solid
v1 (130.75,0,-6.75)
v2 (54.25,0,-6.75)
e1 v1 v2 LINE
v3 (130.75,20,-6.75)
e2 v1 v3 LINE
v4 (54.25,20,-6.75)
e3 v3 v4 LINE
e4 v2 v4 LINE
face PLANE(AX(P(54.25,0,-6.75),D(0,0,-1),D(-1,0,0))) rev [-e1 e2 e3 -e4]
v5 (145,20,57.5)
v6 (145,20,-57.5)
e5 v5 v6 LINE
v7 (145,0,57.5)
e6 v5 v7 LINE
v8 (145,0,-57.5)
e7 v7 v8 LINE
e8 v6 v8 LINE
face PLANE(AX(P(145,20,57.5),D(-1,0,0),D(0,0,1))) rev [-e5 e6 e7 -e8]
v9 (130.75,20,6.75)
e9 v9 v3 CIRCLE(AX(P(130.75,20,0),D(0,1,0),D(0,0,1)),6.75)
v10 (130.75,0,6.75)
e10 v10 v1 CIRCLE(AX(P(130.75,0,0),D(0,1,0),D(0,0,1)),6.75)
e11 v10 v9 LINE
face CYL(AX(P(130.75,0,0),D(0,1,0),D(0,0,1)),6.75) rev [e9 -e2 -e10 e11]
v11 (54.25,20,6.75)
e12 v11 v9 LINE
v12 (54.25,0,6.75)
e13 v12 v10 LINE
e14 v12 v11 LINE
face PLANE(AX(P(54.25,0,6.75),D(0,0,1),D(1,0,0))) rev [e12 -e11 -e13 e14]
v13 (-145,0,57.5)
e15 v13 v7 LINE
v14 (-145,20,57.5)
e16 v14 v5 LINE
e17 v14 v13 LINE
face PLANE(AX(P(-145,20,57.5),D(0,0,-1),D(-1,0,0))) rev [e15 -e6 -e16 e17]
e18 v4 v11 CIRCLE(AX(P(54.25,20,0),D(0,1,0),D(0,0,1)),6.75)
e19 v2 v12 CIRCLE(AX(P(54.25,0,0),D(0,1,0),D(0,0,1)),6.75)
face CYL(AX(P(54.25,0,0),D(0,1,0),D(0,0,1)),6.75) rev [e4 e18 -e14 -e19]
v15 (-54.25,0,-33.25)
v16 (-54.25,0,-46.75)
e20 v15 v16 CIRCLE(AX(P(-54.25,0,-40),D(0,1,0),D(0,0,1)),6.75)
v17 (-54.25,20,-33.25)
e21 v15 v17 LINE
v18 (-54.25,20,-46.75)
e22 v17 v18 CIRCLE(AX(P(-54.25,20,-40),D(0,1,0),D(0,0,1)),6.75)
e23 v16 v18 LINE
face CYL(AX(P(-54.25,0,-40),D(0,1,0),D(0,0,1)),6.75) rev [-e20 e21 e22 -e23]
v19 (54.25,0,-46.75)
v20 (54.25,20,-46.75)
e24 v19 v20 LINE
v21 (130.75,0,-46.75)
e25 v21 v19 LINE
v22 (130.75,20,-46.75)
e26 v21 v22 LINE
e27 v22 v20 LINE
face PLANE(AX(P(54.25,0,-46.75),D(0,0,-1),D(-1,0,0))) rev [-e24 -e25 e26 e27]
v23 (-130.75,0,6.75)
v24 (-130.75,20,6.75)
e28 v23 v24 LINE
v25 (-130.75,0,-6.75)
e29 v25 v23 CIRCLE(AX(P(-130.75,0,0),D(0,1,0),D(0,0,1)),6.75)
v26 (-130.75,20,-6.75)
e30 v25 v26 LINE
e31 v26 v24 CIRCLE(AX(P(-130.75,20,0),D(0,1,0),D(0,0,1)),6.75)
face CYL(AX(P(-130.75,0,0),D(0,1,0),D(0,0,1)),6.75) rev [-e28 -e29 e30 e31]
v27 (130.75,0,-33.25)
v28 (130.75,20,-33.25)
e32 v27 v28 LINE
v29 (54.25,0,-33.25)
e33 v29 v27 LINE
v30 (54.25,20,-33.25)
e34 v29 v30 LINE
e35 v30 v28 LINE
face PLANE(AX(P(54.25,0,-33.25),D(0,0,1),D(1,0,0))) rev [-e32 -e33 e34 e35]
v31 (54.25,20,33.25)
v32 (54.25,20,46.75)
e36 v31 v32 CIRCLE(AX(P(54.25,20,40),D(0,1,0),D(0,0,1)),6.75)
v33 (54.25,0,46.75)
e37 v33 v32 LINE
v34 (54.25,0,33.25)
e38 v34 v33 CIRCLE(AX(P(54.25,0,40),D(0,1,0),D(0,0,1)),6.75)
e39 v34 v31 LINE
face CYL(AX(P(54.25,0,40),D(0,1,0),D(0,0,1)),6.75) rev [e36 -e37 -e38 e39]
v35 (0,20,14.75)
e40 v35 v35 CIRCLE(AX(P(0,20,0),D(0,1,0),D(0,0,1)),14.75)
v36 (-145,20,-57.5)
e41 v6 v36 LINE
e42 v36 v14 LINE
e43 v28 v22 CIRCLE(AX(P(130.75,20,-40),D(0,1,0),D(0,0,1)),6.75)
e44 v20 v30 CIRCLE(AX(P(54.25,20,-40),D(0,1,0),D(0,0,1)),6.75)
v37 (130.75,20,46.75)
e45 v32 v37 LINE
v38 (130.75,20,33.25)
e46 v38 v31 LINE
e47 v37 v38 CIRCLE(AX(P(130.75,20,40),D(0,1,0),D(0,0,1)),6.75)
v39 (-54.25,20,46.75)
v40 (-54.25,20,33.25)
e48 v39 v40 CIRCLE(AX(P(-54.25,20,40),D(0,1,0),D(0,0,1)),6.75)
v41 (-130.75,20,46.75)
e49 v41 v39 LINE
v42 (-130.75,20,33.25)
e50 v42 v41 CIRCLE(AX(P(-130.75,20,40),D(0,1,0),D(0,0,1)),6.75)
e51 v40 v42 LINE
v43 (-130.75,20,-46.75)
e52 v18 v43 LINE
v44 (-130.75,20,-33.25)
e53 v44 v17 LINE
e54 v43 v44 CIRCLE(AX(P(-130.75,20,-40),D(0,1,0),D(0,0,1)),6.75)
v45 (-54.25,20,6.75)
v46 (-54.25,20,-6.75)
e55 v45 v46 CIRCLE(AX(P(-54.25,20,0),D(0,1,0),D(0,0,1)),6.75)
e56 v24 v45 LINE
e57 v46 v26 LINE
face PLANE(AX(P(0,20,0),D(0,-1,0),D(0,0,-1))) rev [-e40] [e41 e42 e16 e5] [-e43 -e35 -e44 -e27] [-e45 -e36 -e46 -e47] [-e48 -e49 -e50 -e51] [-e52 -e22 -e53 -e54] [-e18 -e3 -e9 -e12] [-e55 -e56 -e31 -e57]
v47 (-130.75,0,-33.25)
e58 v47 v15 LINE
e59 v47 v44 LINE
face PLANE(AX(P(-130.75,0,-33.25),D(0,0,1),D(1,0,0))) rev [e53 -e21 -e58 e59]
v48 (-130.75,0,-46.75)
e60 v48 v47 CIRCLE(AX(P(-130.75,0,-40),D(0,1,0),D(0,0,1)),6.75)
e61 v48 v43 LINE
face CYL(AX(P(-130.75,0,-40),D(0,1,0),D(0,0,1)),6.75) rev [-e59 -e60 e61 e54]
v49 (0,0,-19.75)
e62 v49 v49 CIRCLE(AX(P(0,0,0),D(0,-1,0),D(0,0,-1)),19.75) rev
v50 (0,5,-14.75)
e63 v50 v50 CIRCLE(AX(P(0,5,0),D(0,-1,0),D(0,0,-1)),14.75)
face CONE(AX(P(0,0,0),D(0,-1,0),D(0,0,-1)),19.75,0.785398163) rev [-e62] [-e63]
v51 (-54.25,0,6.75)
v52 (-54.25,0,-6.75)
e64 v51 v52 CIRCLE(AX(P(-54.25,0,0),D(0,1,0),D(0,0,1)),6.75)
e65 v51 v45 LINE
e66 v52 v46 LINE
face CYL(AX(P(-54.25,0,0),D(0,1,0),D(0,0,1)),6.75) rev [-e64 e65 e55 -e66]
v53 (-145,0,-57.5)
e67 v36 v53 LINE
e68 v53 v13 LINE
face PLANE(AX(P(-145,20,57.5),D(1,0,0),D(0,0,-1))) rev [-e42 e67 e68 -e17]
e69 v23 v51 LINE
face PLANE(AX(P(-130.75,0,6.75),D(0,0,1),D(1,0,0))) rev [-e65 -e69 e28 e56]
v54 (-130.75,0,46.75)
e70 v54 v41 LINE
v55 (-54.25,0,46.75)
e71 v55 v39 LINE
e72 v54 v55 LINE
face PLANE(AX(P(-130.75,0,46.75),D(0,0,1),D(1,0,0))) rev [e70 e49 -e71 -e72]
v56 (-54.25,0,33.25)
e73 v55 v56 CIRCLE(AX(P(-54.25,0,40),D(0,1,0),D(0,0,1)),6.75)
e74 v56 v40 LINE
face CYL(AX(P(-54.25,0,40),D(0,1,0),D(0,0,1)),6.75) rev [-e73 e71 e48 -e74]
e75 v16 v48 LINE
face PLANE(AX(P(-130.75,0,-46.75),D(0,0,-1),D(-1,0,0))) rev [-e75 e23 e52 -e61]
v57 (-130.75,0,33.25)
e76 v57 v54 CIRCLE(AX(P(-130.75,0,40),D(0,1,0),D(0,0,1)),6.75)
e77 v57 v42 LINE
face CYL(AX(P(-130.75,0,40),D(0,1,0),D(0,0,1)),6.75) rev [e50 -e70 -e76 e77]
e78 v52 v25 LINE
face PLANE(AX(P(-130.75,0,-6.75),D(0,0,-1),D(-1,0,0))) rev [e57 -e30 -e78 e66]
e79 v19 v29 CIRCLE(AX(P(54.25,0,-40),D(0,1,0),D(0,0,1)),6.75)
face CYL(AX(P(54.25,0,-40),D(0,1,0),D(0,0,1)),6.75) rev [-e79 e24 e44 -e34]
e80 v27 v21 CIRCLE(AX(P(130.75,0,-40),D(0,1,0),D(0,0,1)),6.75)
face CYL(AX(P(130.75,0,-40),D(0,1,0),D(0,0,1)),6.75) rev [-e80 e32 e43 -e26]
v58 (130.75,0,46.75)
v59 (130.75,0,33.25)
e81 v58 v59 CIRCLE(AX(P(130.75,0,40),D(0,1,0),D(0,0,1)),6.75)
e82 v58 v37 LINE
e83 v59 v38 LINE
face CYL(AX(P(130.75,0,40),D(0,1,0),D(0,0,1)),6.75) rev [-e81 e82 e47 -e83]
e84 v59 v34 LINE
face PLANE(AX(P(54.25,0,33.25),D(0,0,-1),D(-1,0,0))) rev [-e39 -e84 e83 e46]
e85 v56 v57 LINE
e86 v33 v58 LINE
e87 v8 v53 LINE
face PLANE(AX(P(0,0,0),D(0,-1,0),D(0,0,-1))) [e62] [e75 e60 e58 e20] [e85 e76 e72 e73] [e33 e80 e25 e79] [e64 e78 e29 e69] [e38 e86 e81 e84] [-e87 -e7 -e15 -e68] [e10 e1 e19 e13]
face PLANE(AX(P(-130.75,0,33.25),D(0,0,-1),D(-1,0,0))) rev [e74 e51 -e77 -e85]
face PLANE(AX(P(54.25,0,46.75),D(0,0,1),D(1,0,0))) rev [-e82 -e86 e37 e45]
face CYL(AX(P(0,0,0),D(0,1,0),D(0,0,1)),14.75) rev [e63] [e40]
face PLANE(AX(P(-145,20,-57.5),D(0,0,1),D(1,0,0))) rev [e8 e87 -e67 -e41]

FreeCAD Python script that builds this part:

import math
import FreeCAD as App
import Part
import Sketcher
Q = App.Units.Quantity


def edges_at(feature, points):
    """Names of the edges that pass closest to the given points."""
    edges = feature.Shape.Edges
    near = lambda p: min(range(len(edges)), key=lambda i: edges[i].distToShape(Part.Vertex(*p))[0])
    return sorted({f"Edge{near(p) + 1}" for p in points})


def add_polygon(sketch, points):
    """Adds a closed chain of lines whose ends are joined by coincident constraints."""
    first, n = sketch.GeometryCount, len(points)
    for a, b in zip(points, points[1:] + points[:1]):
        sketch.addGeometry(Part.LineSegment(App.Vector(*a, 0), App.Vector(*b, 0)), False)
    for i in range(n):
        sketch.addConstraint(Sketcher.Constraint("Coincident", first + i, 2, first + (i + 1) % n, 1))

doc = App.newDocument("Part")
body = doc.addObject("PartDesign::Body", "Body")

# Sketch on XZ plane
sketch1 = doc.addObject("Sketcher::SketchObject", "Sketch")
body.addObject(sketch1)
sketch1.AttachmentSupport = (doc.XZ_Plane, [""])
sketch1.MapMode = "FlatFace"
add_polygon(sketch1, [(-145, -58), (-145, 58), (145, 58), (145, -58)])  # lines 0-3
sketch1.addConstraint([
    Sketcher.Constraint("Vertical", 0),
    Sketcher.Constraint("Horizontal", 1),
    Sketcher.Constraint("Vertical", 2),
    Sketcher.Constraint("Horizontal", 3),
    Sketcher.Constraint("Symmetric", 0, 2, 2, 2, -1, 1),
    Sketcher.Constraint("DistanceX", 1, 1, 1, 2, Q("290 mm")),
    Sketcher.Constraint("DistanceY", 0, 1, 0, 2, Q("115 mm")),
])
pad1 = doc.addObject("PartDesign::Pad", "Pad")
body.addObject(pad1)
pad1.Profile = sketch1
pad1.Length = 20
pad1.Reversed = True

# Sketch on XZ plane
sketch2 = doc.addObject("Sketcher::SketchObject", "Sketch001")
body.addObject(sketch2)
sketch2.AttachmentSupport = (doc.XZ_Plane, [""])
sketch2.MapMode = "FlatFace"
sketch2.AttachmentOffset = App.Placement(App.Vector(0, 0, -20), App.Rotation())
sketch2.addGeometry([
    Part.Circle(App.Vector(0, 0, 0), App.Vector(0, 0, 1), 15),  # 0
    Part.LineSegment(App.Vector(-54, -7, 0), App.Vector(-131, -7, 0)),  # 1
    Part.ArcOfCircle(Part.Circle(App.Vector(-131, 0, 0), App.Vector(0, 0, 1), 7), math.radians(90), math.radians(270)),  # 2
    Part.LineSegment(App.Vector(-131, 7, 0), App.Vector(-54, 7, 0)),  # 3
    Part.ArcOfCircle(Part.Circle(App.Vector(-54, 0, 0), App.Vector(0, 0, 1), 7), math.radians(-90), math.radians(90)),  # 4
    Part.LineSegment(App.Vector(-54, -47, 0), App.Vector(-131, -47, 0)),  # 5
    Part.ArcOfCircle(Part.Circle(App.Vector(-131, -40, 0), App.Vector(0, 0, 1), 7), math.radians(90), math.radians(270)),  # 6
    Part.LineSegment(App.Vector(-131, -33, 0), App.Vector(-54, -33, 0)),  # 7
    Part.ArcOfCircle(Part.Circle(App.Vector(-54, -40, 0), App.Vector(0, 0, 1), 7), math.radians(-90), math.radians(90)),  # 8
    Part.LineSegment(App.Vector(-54, 33, 0), App.Vector(-131, 33, 0)),  # 9
    Part.ArcOfCircle(Part.Circle(App.Vector(-131, 40, 0), App.Vector(0, 0, 1), 7), math.radians(90), math.radians(270)),  # 10
    Part.LineSegment(App.Vector(-131, 47, 0), App.Vector(-54, 47, 0)),  # 11
    Part.ArcOfCircle(Part.Circle(App.Vector(-54, 40, 0), App.Vector(0, 0, 1), 7), math.radians(-90), math.radians(90)),  # 12
    Part.LineSegment(App.Vector(131, -7, 0), App.Vector(54, -7, 0)),  # 13
    Part.ArcOfCircle(Part.Circle(App.Vector(54, 0, 0), App.Vector(0, 0, 1), 7), math.radians(90), math.radians(270)),  # 14
    Part.LineSegment(App.Vector(54, 7, 0), App.Vector(131, 7, 0)),  # 15
    Part.ArcOfCircle(Part.Circle(App.Vector(131, 0, 0), App.Vector(0, 0, 1), 7), math.radians(-90), math.radians(90)),  # 16
    Part.LineSegment(App.Vector(131, 33, 0), App.Vector(54, 33, 0)),  # 17
    Part.ArcOfCircle(Part.Circle(App.Vector(54, 40, 0), App.Vector(0, 0, 1), 7), math.radians(90), math.radians(270)),  # 18
    Part.LineSegment(App.Vector(54, 47, 0), App.Vector(131, 47, 0)),  # 19
    Part.ArcOfCircle(Part.Circle(App.Vector(131, 40, 0), App.Vector(0, 0, 1), 7), math.radians(-90), math.radians(90)),  # 20
    Part.LineSegment(App.Vector(131, -47, 0), App.Vector(54, -47, 0)),  # 21
    Part.ArcOfCircle(Part.Circle(App.Vector(54, -40, 0), App.Vector(0, 0, 1), 7), math.radians(90), math.radians(270)),  # 22
    Part.LineSegment(App.Vector(54, -33, 0), App.Vector(131, -33, 0)),  # 23
    Part.ArcOfCircle(Part.Circle(App.Vector(131, -40, 0), App.Vector(0, 0, 1), 7), math.radians(-90), math.radians(90)),  # 24
], False)
sketch2.addConstraint([
    Sketcher.Constraint("Tangent", 1, 2, 2, 2),
    Sketcher.Constraint("Tangent", 2, 1, 3, 1),
    Sketcher.Constraint("Tangent", 3, 2, 4, 2),
    Sketcher.Constraint("Tangent", 4, 1, 1, 1),
    Sketcher.Constraint("Tangent", 5, 2, 6, 2),
    Sketcher.Constraint("Tangent", 6, 1, 7, 1),
    Sketcher.Constraint("Tangent", 7, 2, 8, 2),
    Sketcher.Constraint("Tangent", 8, 1, 5, 1),
    Sketcher.Constraint("Tangent", 9, 2, 10, 2),
    Sketcher.Constraint("Tangent", 10, 1, 11, 1),
    Sketcher.Constraint("Tangent", 11, 2, 12, 2),
    Sketcher.Constraint("Tangent", 12, 1, 9, 1),
    Sketcher.Constraint("Tangent", 13, 2, 14, 2),
    Sketcher.Constraint("Tangent", 14, 1, 15, 1),
    Sketcher.Constraint("Tangent", 15, 2, 16, 2),
    Sketcher.Constraint("Tangent", 16, 1, 13, 1),
    Sketcher.Constraint("Tangent", 17, 2, 18, 2),
    Sketcher.Constraint("Tangent", 18, 1, 19, 1),
    Sketcher.Constraint("Tangent", 19, 2, 20, 2),
    Sketcher.Constraint("Tangent", 20, 1, 17, 1),
    Sketcher.Constraint("Tangent", 21, 2, 22, 2),
    Sketcher.Constraint("Tangent", 22, 1, 23, 1),
    Sketcher.Constraint("Tangent", 23, 2, 24, 2),
    Sketcher.Constraint("Tangent", 24, 1, 21, 1),
    Sketcher.Constraint("Horizontal", 1),
    Sketcher.Constraint("Horizontal", 3),
    Sketcher.Constraint("Horizontal", 5),
    Sketcher.Constraint("Horizontal", 7),
    Sketcher.Constraint("Horizontal", 9),
    Sketcher.Constraint("Horizontal", 11),
    Sketcher.Constraint("Horizontal", 13),
    Sketcher.Constraint("Horizontal", 15),
    Sketcher.Constraint("Horizontal", 17),
    Sketcher.Constraint("Horizontal", 19),
    Sketcher.Constraint("Horizontal", 21),
    Sketcher.Constraint("Horizontal", 23),
    Sketcher.Constraint("Coincident", 0, 3, -1, 1),
    Sketcher.Constraint("Equal", 4, 6),
    Sketcher.Constraint("Equal", 8, 10),
    Sketcher.Constraint("Equal", 12, 14),
    Sketcher.Constraint("Equal", 16, 18),
    Sketcher.Constraint("Equal", 20, 22),
    Sketcher.Constraint("Symmetric", 4, 3, 14, 3, -1, 1),
    Sketcher.Constraint("Symmetric", 8, 3, 18, 3, -1, 1),
    Sketcher.Constraint("Symmetric", 12, 3, 22, 3, -1, 1),
    Sketcher.Constraint("Symmetric", 2, 3, 16, 3, -2),
    Sketcher.Constraint("Symmetric", 12, 3, 18, 3, -2),
    Sketcher.Constraint("Vertical", 2, 3, 6, 3),
    Sketcher.Constraint("Vertical", 4, 3, 8, 3),
    Sketcher.Constraint("Vertical", 6, 3, 10, 3),
    Sketcher.Constraint("Vertical", 16, 3, 20, 3),
    Sketcher.Constraint("Vertical", 20, 3, 24, 3),
    Sketcher.Constraint("Diameter", 0, Q("29.5 mm")),
    Sketcher.Constraint("Radius", 2, Q("6.75 mm")),
    Sketcher.Constraint("DistanceX", 1, 2, 1, 1, Q("76.5 mm")),
    Sketcher.Constraint("DistanceY", 6, 3, -1, 1, Q("40 mm")),
    Sketcher.Constraint("DistanceX", 2, 3, 14, 3, Q("185 mm")),
])
pocket1 = doc.addObject("PartDesign::Pocket", "Pocket")
body.addObject(pocket1)
pocket1.Profile = sketch2
pocket1.Length = 20
pocket1.Reversed = True
doc.recompute()

chamfer = doc.addObject("PartDesign::Chamfer", "Chamfer")
body.addObject(chamfer)
chamfer.Base = (pocket1, edges_at(pocket1, [(-14.75, 0, 0)]))
chamfer.Size = 5

doc.recompute()
